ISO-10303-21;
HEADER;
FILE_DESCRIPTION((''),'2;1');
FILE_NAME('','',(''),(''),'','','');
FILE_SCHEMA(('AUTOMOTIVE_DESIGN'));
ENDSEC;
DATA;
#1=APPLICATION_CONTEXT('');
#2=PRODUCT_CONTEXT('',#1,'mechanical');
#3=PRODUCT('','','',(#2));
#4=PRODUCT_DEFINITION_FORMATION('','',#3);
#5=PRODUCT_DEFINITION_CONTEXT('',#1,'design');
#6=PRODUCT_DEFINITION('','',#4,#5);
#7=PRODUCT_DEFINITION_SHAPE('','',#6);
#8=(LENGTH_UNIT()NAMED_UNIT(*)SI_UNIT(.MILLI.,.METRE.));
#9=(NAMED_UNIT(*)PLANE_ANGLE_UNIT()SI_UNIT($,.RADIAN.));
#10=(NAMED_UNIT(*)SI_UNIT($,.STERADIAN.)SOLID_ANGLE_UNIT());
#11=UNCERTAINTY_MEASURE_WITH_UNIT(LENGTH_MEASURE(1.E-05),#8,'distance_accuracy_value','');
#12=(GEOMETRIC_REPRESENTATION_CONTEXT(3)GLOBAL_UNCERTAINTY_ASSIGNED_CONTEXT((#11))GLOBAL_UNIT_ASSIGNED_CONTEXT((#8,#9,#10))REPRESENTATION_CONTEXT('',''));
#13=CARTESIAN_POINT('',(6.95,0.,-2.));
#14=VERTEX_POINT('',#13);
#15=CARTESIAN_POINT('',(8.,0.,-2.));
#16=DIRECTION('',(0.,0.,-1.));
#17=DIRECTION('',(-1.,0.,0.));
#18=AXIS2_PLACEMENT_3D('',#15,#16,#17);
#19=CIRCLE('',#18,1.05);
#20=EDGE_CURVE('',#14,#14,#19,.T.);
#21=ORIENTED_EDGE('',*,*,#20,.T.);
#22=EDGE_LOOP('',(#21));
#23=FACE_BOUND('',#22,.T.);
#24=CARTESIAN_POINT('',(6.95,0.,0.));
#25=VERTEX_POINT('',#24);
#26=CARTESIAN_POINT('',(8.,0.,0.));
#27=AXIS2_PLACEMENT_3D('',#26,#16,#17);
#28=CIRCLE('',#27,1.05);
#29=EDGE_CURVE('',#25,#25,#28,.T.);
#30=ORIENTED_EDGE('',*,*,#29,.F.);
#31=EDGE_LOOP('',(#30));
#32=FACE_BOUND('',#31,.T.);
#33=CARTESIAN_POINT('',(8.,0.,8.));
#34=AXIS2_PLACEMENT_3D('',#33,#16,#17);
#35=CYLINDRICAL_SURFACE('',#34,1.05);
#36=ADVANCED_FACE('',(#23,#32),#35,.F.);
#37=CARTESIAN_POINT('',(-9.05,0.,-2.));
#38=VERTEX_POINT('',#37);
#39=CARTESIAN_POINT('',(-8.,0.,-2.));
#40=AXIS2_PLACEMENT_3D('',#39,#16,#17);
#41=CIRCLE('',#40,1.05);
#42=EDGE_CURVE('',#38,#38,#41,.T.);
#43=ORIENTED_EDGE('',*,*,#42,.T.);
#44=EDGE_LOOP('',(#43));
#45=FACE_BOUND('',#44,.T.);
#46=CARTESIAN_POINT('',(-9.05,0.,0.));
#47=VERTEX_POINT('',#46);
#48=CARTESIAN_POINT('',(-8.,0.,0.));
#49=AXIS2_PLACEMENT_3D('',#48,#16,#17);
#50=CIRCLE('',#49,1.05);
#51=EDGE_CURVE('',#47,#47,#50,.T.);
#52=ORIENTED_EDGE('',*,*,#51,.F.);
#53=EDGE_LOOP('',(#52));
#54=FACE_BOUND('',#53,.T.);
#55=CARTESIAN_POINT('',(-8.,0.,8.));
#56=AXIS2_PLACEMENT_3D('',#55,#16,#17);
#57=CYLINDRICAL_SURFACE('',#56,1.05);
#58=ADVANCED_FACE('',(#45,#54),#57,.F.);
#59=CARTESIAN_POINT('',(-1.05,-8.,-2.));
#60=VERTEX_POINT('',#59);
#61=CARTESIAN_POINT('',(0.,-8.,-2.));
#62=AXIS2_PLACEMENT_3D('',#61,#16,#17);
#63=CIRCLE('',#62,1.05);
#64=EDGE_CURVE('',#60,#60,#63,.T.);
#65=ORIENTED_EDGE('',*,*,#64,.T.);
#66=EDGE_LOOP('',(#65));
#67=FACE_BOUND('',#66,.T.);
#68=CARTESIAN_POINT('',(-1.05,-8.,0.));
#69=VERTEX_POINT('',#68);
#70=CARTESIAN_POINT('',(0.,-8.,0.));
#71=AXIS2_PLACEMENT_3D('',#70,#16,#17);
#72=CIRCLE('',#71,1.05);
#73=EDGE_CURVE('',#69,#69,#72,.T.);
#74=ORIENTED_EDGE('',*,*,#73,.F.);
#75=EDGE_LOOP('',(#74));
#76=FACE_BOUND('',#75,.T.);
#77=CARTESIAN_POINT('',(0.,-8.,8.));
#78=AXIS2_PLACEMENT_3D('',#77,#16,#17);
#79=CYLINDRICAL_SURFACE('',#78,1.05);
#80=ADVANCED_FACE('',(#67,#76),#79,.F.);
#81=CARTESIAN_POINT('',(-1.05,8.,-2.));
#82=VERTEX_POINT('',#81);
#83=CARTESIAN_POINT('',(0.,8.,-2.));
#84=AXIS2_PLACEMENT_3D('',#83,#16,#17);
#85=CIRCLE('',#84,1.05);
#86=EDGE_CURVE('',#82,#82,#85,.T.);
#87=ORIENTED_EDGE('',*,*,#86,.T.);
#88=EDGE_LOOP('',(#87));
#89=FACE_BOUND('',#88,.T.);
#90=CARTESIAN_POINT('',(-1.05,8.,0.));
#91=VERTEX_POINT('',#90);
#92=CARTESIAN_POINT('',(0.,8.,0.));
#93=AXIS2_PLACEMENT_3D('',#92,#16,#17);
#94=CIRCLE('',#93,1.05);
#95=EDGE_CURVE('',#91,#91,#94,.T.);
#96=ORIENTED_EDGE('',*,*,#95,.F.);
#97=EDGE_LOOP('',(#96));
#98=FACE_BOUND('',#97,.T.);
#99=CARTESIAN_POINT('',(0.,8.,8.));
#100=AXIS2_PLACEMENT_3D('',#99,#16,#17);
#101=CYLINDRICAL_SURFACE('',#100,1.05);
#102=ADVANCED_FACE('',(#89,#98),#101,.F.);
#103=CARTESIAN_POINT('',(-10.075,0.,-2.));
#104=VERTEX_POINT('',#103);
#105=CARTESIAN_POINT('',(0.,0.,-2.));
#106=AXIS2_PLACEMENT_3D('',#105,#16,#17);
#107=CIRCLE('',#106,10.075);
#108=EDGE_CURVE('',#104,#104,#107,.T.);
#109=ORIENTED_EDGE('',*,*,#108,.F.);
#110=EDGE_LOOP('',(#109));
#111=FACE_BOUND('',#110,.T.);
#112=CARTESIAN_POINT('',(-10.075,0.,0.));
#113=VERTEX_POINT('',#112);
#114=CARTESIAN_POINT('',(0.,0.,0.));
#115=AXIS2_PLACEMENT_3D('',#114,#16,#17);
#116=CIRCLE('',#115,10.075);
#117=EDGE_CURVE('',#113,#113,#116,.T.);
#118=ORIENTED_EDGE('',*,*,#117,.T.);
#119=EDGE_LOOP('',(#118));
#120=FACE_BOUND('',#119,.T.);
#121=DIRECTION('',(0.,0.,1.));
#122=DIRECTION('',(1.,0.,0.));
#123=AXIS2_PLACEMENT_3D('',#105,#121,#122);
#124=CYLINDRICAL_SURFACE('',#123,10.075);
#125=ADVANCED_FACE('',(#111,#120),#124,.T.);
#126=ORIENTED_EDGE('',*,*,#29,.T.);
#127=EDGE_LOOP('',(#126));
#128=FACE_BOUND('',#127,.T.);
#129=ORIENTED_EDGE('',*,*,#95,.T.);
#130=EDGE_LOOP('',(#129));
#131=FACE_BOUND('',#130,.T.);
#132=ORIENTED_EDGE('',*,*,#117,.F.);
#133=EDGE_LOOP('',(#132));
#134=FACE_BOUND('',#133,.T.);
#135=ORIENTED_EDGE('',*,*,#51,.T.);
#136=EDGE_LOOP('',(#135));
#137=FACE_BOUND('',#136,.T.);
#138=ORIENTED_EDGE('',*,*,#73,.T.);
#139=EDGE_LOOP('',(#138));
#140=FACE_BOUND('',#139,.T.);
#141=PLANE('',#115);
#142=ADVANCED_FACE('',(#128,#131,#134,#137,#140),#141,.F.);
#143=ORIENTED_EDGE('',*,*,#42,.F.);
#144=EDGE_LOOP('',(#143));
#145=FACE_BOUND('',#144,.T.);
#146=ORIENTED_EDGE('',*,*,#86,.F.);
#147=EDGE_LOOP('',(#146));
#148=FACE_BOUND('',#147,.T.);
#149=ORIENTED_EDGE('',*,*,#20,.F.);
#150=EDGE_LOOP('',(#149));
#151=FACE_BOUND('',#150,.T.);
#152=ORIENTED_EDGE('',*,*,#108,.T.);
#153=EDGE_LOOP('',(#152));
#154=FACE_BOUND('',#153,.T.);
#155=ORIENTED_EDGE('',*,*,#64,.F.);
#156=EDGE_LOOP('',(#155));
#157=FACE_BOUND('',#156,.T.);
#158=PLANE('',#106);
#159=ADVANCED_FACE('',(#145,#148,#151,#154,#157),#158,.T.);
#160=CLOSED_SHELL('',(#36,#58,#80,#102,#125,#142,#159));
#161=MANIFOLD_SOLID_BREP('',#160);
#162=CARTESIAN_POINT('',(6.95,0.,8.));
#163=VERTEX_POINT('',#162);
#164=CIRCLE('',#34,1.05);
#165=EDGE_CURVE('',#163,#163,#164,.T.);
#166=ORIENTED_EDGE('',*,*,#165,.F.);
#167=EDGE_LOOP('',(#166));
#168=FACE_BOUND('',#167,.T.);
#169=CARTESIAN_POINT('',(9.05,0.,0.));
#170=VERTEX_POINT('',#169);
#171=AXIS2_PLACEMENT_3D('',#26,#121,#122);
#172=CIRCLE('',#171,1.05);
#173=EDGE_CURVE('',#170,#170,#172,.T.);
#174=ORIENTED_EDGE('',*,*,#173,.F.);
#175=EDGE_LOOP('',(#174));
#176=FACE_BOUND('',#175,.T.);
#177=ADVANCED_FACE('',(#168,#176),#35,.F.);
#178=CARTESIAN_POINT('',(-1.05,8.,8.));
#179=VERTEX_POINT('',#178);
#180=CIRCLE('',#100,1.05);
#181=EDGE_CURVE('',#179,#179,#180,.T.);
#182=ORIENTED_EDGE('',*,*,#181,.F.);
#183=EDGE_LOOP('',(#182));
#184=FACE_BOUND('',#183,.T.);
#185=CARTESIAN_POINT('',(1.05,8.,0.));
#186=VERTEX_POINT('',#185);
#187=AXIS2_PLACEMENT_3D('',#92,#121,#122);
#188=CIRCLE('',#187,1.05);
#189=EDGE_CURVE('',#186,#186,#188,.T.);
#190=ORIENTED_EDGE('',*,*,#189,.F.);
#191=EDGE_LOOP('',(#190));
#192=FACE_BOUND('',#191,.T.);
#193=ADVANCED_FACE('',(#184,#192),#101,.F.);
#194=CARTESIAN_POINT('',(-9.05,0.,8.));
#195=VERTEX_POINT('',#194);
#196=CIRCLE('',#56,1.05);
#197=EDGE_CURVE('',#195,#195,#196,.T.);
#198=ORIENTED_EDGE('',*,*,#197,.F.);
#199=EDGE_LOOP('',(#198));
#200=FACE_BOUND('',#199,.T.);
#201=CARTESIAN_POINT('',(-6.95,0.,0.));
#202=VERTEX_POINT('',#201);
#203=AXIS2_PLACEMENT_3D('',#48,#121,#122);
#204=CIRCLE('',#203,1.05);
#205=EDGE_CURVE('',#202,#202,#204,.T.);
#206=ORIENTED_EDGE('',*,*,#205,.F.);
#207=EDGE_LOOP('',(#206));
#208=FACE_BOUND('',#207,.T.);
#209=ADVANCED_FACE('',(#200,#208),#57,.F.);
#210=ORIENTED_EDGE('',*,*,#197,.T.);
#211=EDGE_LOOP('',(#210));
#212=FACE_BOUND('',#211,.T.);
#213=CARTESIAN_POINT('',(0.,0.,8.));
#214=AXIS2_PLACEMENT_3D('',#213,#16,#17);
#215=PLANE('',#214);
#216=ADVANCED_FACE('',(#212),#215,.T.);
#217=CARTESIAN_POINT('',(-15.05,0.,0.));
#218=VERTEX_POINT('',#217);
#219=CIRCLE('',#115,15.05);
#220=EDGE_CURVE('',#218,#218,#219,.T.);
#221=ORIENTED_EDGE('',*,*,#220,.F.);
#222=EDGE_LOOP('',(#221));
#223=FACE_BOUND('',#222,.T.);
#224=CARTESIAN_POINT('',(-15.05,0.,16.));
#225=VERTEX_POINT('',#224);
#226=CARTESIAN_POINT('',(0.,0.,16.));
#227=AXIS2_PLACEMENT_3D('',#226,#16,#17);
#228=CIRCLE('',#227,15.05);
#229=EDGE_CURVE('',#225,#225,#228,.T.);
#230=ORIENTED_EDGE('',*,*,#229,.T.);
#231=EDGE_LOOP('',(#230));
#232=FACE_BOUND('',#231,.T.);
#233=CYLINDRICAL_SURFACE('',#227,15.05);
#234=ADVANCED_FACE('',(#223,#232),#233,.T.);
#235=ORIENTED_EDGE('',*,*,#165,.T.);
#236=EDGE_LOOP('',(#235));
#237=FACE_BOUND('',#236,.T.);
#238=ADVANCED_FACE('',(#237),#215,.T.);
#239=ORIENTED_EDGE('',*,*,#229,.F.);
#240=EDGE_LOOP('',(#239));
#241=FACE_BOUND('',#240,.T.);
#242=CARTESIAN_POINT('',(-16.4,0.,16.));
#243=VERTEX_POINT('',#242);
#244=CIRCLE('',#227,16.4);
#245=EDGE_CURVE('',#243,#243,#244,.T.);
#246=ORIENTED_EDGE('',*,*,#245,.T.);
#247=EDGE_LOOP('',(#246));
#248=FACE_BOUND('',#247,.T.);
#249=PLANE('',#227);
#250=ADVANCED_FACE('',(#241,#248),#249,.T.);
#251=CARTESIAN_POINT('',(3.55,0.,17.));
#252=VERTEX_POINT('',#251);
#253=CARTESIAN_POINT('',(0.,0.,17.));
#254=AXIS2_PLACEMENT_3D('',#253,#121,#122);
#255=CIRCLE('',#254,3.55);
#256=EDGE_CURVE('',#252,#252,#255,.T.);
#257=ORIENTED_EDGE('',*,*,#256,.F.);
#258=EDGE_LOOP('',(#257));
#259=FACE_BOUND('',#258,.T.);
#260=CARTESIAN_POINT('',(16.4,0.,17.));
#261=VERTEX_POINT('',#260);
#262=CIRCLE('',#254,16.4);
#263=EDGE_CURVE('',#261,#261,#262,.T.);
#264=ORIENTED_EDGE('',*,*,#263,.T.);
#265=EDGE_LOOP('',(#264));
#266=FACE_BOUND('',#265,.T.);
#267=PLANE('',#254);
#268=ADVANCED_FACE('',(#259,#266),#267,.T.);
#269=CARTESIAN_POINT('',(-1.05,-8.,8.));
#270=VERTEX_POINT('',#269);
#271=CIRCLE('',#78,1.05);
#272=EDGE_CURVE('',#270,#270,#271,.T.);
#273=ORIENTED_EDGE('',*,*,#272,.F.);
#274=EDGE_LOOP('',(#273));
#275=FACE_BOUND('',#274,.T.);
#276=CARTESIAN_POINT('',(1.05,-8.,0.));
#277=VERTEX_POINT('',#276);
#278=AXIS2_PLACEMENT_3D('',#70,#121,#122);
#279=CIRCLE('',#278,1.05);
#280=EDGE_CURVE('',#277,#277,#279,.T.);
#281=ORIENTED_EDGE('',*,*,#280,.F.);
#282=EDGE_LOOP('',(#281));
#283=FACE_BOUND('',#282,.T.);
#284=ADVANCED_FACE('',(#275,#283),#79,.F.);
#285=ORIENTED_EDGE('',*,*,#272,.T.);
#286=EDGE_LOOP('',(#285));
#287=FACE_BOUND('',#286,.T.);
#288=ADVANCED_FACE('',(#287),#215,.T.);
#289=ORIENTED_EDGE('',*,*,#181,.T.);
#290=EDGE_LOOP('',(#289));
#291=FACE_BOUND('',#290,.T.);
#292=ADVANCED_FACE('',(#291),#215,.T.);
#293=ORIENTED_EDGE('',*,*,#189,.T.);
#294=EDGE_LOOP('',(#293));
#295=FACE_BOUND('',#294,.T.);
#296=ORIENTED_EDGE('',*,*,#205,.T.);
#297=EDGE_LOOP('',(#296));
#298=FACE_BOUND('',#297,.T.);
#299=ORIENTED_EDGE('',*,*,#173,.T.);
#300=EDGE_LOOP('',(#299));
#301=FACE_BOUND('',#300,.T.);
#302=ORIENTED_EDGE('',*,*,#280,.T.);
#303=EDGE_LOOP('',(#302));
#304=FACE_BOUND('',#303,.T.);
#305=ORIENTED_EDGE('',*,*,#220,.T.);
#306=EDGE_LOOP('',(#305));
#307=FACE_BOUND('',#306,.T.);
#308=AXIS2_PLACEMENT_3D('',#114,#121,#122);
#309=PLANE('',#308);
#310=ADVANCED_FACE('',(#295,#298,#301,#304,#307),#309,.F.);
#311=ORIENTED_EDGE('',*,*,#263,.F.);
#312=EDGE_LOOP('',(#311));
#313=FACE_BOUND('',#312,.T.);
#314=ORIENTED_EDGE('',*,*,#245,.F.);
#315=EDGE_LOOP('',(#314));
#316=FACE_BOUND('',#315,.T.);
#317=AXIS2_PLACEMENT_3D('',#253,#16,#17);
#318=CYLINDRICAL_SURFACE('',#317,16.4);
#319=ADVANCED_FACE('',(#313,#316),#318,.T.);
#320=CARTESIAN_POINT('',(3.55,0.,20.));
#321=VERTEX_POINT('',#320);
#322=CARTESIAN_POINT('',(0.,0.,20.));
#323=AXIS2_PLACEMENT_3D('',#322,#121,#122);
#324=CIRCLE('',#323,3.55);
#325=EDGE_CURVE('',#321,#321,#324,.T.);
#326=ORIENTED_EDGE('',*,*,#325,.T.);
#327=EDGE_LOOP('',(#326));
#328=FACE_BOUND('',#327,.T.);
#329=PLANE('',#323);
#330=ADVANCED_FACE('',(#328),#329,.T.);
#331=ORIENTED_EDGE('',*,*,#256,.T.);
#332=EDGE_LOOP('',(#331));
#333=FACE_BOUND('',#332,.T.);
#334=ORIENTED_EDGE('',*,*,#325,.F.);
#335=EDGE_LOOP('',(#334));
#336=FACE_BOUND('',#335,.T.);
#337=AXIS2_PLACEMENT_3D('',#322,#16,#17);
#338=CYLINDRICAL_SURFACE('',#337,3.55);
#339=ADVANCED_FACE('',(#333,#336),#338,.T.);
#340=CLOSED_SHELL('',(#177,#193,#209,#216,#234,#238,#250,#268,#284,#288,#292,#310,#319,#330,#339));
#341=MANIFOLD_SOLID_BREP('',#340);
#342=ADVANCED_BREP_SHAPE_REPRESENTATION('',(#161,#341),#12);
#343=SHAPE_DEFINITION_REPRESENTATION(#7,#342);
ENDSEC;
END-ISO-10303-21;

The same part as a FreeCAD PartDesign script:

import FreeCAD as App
import Part
import Sketcher
from FreeCAD import Vector

doc = App.newDocument("Part")
body = doc.addObject("PartDesign::Body", "Body")

# Sketch on XY plane
sketch1 = doc.addObject("Sketcher::SketchObject", "Sketch")
body.addObject(sketch1)
sketch1.AttachmentSupport = (doc.XY_Plane, [""])
sketch1.MapMode = "FlatFace"
sketch1.addGeometry(Part.Circle(Vector(0, 0, 0), Vector(0, 0, 1), 16), False)
sketch1.addConstraint(Sketcher.Constraint("Coincident", 0, 3, -1, 1))
sketch1.addConstraint(Sketcher.Constraint("Diameter", 0, 32.8))
pad1 = doc.addObject("PartDesign::Pad", "Pad")
body.addObject(pad1)
pad1.Profile = sketch1
pad1.Length = 17

# Sketch on XY plane
sketch2 = doc.addObject("Sketcher::SketchObject", "Sketch001")
body.addObject(sketch2)
sketch2.AttachmentSupport = (doc.XY_Plane, [""])
sketch2.MapMode = "FlatFace"
sketch2.AttachmentOffset = App.Placement(Vector(0, 0, 17), App.Rotation())
sketch2.addGeometry(Part.Circle(Vector(0, 0, 0), Vector(0, 0, 1), 3.5), False)
sketch2.addConstraint(Sketcher.Constraint("Coincident", 0, 3, -1, 1))
sketch2.addConstraint(Sketcher.Constraint("Diameter", 0, 7.1))
pad2 = doc.addObject("PartDesign::Pad", "Pad001")
body.addObject(pad2)
pad2.Profile = sketch2
pad2.Length = 3
body2 = doc.addObject("PartDesign::Body", "Body001")

# Sketch on XY plane
sketch3 = doc.addObject("Sketcher::SketchObject", "Sketch002")
body2.addObject(sketch3)
sketch3.AttachmentSupport = (doc.getObject("XY_Plane001"), [""])
sketch3.MapMode = "FlatFace"
sketch3.addGeometry(Part.Circle(Vector(0, 0, 0), Vector(0, 0, 1), 10), False)
sketch3.addConstraint(Sketcher.Constraint("Coincident", 0, 3, -1, 1))
sketch3.addConstraint(Sketcher.Constraint("Diameter", 0, 20.15))
pad3 = doc.addObject("PartDesign::Pad", "Pad002")
body2.addObject(pad3)
pad3.Profile = sketch3
pad3.Length = 2
pad3.Reversed = True
body3 = doc.addObject("PartDesign::Body", "Body002")
body3.AllowCompound = True

# Sketch on XY plane
sketch4 = doc.addObject("Sketcher::SketchObject", "Sketch003")
body3.addObject(sketch4)
sketch4.AttachmentSupport = (doc.getObject("XY_Plane002"), [""])
sketch4.MapMode = "FlatFace"
sketch4.AttachmentOffset = App.Placement(Vector(0, 0, -2), App.Rotation())
sketch4.addGeometry(Part.Circle(Vector(0, 8, 0), Vector(0, 0, 1), 1.1), False)
sketch4.addGeometry(Part.Circle(Vector(-8, 0, 0), Vector(0, 0, 1), 1.1), False)
sketch4.addGeometry(Part.Circle(Vector(0, -8, 0), Vector(0, 0, 1), 1.1), False)
sketch4.addGeometry(Part.Circle(Vector(8, 0, 0), Vector(0, 0, 1), 1.1), False)
sketch4.addConstraint(Sketcher.Constraint("Equal", 0, 1))
sketch4.addConstraint(Sketcher.Constraint("Equal", 1, 2))
sketch4.addConstraint(Sketcher.Constraint("Equal", 2, 3))
sketch4.addConstraint(Sketcher.Constraint("Symmetric", 0, 3, 2, 3, -1, 1))
sketch4.addConstraint(Sketcher.Constraint("Symmetric", 1, 3, 3, 3, -1, 1))
sketch4.addConstraint(Sketcher.Constraint("PointOnObject", 0, 3, -2))
sketch4.addConstraint(Sketcher.Constraint("PointOnObject", 1, 3, -1))
sketch4.addConstraint(Sketcher.Constraint("Diameter", 0, 2.1))
sketch4.addConstraint(Sketcher.Constraint("DistanceY", -1, 1, 0, 3, 8.0))
sketch4.addConstraint(Sketcher.Constraint("DistanceX", 1, 3, -1, 1, 8.0))
pad4 = doc.addObject("PartDesign::Pad", "Pad003")
body3.addObject(pad4)
pad4.Profile = sketch4
pad4.Length = 10
doc.recompute()

body4 = doc.addObject("PartDesign::Body", "Body003")
body4.BaseFeature = body3
boolean = doc.addObject("PartDesign::Boolean", "Boolean")
body.addObject(boolean)
boolean.Type = "Cut"
boolean.addObjects([body4])
doc.recompute()

# Sketch on XY plane
sketch5 = doc.addObject("Sketcher::SketchObject", "Sketch004")
body.addObject(sketch5)
sketch5.AttachmentSupport = (doc.XY_Plane, [""])
sketch5.MapMode = "FlatFace"
sketch5.addGeometry(Part.Circle(Vector(0, 0, 0), Vector(0, 0, 1), 16), False)
sketch5.addGeometry(Part.Circle(Vector(0, 0, 0), Vector(0, 0, 1), 15), False)
sketch5.addConstraint(Sketcher.Constraint("Coincident", 0, 3, -1, 1))
sketch5.addConstraint(Sketcher.Constraint("Coincident", 1, 3, -1, 1))
sketch5.addConstraint(Sketcher.Constraint("Diameter", 0, 32.8))
sketch5.addConstraint(Sketcher.Constraint("Diameter", 1, 30.1))
pocket1 = doc.addObject("PartDesign::Pocket", "Pocket")
body.addObject(pocket1)
pocket1.Profile = sketch5
pocket1.Length = 16
pocket1.Reversed = True
doc.recompute()

boolean2 = doc.addObject("PartDesign::Boolean", "Boolean001")
body2.addObject(boolean2)
boolean2.Type = "Cut"
boolean2.addObjects([body3])

doc.recompute()
